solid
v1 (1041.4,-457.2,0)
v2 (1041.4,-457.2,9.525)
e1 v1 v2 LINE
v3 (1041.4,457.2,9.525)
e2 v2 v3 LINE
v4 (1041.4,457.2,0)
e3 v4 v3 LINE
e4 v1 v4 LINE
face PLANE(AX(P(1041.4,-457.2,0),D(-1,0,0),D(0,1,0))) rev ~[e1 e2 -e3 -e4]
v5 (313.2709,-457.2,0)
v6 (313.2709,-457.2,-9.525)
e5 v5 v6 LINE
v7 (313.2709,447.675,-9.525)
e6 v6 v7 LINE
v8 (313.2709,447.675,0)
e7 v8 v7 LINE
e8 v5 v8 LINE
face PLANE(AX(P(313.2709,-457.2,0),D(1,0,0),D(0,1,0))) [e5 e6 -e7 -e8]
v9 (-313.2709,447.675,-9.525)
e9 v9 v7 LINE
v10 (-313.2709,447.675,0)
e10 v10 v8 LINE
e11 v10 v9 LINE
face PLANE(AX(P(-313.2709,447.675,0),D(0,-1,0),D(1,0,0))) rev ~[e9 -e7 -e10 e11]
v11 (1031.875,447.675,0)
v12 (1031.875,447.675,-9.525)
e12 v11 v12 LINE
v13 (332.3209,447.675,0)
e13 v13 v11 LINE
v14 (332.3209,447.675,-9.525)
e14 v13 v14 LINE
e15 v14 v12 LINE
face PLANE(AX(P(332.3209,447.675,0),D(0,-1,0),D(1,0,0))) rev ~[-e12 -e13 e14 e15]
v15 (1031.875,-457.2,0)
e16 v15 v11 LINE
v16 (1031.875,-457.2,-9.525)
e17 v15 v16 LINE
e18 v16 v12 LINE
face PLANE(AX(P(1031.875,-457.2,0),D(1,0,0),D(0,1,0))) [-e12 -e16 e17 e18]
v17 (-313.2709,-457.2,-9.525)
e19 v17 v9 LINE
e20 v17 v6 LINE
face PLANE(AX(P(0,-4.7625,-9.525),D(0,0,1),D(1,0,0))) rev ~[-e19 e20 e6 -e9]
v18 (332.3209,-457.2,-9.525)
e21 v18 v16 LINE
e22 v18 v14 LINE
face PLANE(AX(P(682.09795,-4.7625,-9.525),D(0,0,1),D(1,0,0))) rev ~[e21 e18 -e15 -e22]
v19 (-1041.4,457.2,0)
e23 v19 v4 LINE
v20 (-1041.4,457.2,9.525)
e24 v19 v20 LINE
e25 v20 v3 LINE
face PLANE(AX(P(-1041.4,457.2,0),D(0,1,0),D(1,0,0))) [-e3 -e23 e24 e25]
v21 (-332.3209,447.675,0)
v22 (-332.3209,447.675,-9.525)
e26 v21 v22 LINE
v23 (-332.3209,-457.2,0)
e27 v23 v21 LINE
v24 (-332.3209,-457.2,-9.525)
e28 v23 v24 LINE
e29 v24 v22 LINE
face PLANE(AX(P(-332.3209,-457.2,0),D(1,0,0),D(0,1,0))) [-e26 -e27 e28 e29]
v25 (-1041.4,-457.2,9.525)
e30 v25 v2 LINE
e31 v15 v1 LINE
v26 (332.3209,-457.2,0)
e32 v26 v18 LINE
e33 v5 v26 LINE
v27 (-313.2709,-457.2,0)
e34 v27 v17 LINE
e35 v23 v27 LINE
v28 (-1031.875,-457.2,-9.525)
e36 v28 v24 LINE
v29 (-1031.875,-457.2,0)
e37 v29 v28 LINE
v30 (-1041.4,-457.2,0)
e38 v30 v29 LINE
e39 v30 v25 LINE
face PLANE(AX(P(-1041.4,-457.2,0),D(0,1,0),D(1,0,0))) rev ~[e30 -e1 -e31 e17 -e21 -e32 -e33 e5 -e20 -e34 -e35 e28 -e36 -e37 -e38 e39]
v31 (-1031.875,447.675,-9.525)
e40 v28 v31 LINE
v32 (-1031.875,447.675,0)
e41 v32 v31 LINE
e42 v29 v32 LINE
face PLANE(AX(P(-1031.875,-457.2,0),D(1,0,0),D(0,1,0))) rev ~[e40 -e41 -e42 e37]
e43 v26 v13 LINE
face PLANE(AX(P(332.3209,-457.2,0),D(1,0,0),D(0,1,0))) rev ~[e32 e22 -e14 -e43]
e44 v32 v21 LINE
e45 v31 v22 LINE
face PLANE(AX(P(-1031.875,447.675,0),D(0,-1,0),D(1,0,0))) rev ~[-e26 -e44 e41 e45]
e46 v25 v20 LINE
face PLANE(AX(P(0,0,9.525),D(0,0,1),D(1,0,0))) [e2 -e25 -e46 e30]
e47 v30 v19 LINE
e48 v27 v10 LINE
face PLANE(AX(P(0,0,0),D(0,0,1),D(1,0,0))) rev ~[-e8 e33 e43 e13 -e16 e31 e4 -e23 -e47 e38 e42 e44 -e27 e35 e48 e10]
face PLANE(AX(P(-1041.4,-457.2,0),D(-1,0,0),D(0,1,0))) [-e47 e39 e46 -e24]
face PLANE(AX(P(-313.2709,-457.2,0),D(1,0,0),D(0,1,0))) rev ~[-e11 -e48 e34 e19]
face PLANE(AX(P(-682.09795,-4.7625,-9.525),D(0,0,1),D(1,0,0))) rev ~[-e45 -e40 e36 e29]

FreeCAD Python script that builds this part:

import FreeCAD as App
import Part
import Sketcher
from FreeCAD import Vector
Q = App.Units.Quantity


def add_polygon(sketch, points):
    """Adds a closed chain of lines whose ends are joined by coincident constraints."""
    first, n = sketch.GeometryCount, len(points)
    for a, b in zip(points, points[1:] + points[:1]):
        sketch.addGeometry(Part.LineSegment(App.Vector(*a, 0), App.Vector(*b, 0)), False)
    for i in range(n):
        sketch.addConstraint(Sketcher.Constraint("Coincident", first + i, 2, first + (i + 1) % n, 1))

doc = App.newDocument("Part")
body = doc.addObject("PartDesign::Body", "Body")

sketch1 = body.newObject("Sketcher::SketchObject", "Sketch")
sketch1.AttachmentSupport = (doc.getObject("XY_Plane"), [""])
sketch1.MapMode = "FlatFace"
add_polygon(sketch1, [(-1041, 457), (-1041, -457), (1041, -457), (1041, 457)])
sketch1.addConstraint([
    Sketcher.Constraint("Vertical", 0),
    Sketcher.Constraint("Horizontal", 1),
    Sketcher.Constraint("Vertical", 2),
    Sketcher.Constraint("Horizontal", 3),
    Sketcher.Constraint("Symmetric", 0, 2, 2, 2, -1, 1),
    Sketcher.Constraint("DistanceX", 1, 1, 1, 2, Q("82 in")),
    Sketcher.Constraint("DistanceY", 0, 2, 0, 1, Q("36 in")),
])
pad1 = body.newObject("PartDesign::Pad", "Pad")
pad1.Profile = sketch1
pad1.Length = Q("0.375 in")

sketch2 = body.newObject("Sketcher::SketchObject", "Sketch001")
sketch2.AttachmentSupport = (doc.getObject("XY_Plane"), [""])
sketch2.MapMode = "FlatFace"
add_polygon(sketch2, [(-1032, 448), (-1032, -457), (-332, -457), (-332, 448)])
add_polygon(sketch2, [(332, 448), (332, -457), (1032, -457), (1032, 448)])
add_polygon(sketch2, [(-313, 448), (-313, -457), (313, -457), (313, 448)])
sketch2.addConstraint([
    Sketcher.Constraint("Vertical", 0),
    Sketcher.Constraint("Horizontal", 1),
    Sketcher.Constraint("Vertical", 2),
    Sketcher.Constraint("Horizontal", 3),
    Sketcher.Constraint("Vertical", 4),
    Sketcher.Constraint("Horizontal", 5),
    Sketcher.Constraint("Vertical", 6),
    Sketcher.Constraint("Horizontal", 7),
    Sketcher.Constraint("Vertical", 8),
    Sketcher.Constraint("Horizontal", 9),
    Sketcher.Constraint("Vertical", 10),
    Sketcher.Constraint("Horizontal", 11),
    Sketcher.Constraint("Symmetric", 1, 2, 4, 2, -2),
    Sketcher.Constraint("Symmetric", 3, 2, 6, 2, -2),
    Sketcher.Constraint("Horizontal", 5, 2, 8, 2),
    Sketcher.Constraint("Horizontal", 7, 2, 10, 2),
    Sketcher.Constraint("DistanceY", 0, 2, -1, 1, Q("18 in")),
    Sketcher.Constraint("DistanceX", 9, 1, 9, 2, Q("24.667 in")),
    Sketcher.Constraint("DistanceY", 0, 2, 0, 1, Q("35.625 in")),
    Sketcher.Constraint("DistanceX", 0, 2, 5, 2, Q("81.25 in")),
    Sketcher.Constraint("DistanceX", 1, 2, 8, 2, Q("0.75 in")),
    Sketcher.Constraint("DistanceX", 9, 2, 4, 2, Q("0.75 in")),
])
pad2 = body.newObject("PartDesign::Pad", "Pad001")
pad2.Profile = sketch2
pad2.Length = Q("0.375 in")
pad2.Reversed = True

doc.recompute()
